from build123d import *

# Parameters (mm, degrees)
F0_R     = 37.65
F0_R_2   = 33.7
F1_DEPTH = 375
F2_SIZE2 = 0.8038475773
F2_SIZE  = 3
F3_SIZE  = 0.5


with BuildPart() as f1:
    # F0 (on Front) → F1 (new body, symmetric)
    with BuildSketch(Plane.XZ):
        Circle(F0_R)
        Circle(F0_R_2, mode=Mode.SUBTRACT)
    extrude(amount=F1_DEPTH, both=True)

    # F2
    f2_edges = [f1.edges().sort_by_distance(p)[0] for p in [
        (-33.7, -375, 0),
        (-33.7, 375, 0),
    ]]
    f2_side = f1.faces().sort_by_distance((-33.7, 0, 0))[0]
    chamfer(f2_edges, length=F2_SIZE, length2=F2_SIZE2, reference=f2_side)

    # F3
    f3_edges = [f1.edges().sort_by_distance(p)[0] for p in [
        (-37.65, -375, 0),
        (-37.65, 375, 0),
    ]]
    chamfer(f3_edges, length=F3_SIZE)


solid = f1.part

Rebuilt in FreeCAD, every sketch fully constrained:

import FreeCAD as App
import Part
import Sketcher
from FreeCAD import Vector
Q = App.Units.Quantity


def edges_at(feature, points):
    """Names of the edges that pass closest to the given points."""
    edges = feature.Shape.Edges
    near = lambda p: min(range(len(edges)), key=lambda i: edges[i].distToShape(Part.Vertex(*p))[0])
    return sorted({f"Edge{near(p) + 1}" for p in points})

doc = App.newDocument("Part")
params = doc.addObject("Spreadsheet::Sheet", "Params")
for row, (alias, value) in enumerate([
    ("sketch1_diameter", "75.3 mm"),
    ("sketch1_diameter2", "67.4 mm"),
    ("pad1_length", "750 mm"),
    ("chamfer_size", "3 mm"),
    ("chamfer_size2", "0.803848 mm"),
    ("chamfer2_size", "0.5 mm"),
], start=1):
    params.set(f"A{row}", alias)
    params.set(f"B{row}", "=" + value)
    params.setAlias(f"B{row}", alias)

body = doc.addObject("PartDesign::Body", "Body")

sketch1 = body.newObject("Sketcher::SketchObject", "Sketch")
sketch1.AttachmentSupport = (doc.getObject("XZ_Plane"), [""])
sketch1.MapMode = "FlatFace"
sketch1.addGeometry(Part.Circle(Vector(0, 0, 0), Vector(0, 0, 1), 38), False)
sketch1.addGeometry(Part.Circle(Vector(0, 0, 0), Vector(0, 0, 1), 34), False)
sketch1.addConstraint(Sketcher.Constraint("Coincident", 0, 3, -1, 1))
sketch1.addConstraint(Sketcher.Constraint("Coincident", 1, 3, -1, 1))
sketch1.addConstraint(Sketcher.Constraint("Diameter", 0, Q("75.3 mm")))
sketch1.addConstraint(Sketcher.Constraint("Diameter", 1, Q("67.4 mm")))
sketch1.setExpression("Constraints[2]", "Params.sketch1_diameter")
sketch1.setExpression("Constraints[3]", "Params.sketch1_diameter2")
pad1 = body.newObject("PartDesign::Pad", "Pad")
pad1.Profile = sketch1
pad1.setExpression("Length", "Params.pad1_length")
pad1.Midplane = True
doc.recompute()

chamfer = body.newObject("PartDesign::Chamfer", "Chamfer")
chamfer.Base = (pad1, edges_at(pad1, [(-33.7, -375, 0), (-33.7, 375, 0)]))
chamfer.ChamferType = "Two distances"
chamfer.setExpression("Size", "Params.chamfer_size")
chamfer.setExpression("Size2", "Params.chamfer_size2")
doc.recompute()

chamfer2 = body.newObject("PartDesign::Chamfer", "Chamfer001")
chamfer2.Base = (chamfer, edges_at(chamfer, [(-37.65, -375, 0), (-37.65, 375, 0)]))
chamfer2.setExpression("Size", "Params.chamfer2_size")

doc.recompute()
